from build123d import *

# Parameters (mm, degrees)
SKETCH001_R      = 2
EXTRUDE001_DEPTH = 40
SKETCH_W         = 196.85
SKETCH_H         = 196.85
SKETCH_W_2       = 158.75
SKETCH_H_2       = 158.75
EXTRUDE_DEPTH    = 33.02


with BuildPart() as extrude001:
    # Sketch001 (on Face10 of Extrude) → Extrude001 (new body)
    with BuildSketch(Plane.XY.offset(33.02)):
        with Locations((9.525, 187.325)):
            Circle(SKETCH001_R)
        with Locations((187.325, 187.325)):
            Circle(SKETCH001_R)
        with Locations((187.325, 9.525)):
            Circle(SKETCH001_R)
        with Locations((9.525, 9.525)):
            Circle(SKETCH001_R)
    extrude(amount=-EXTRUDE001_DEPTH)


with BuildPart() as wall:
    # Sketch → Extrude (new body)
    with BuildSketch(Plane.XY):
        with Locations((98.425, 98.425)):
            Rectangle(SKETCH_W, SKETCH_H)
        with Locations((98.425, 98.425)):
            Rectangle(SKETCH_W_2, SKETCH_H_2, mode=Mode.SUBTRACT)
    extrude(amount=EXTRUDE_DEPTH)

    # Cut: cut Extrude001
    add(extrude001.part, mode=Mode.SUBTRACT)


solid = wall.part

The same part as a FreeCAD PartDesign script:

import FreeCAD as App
import Part
import Sketcher

V = App.Vector
Q = App.Units.Quantity


def add_polygon(sketch, points):
    """Adds a closed chain of lines whose ends are joined by coincident constraints."""
    first, n = sketch.GeometryCount, len(points)
    for a, b in zip(points, points[1:] + points[:1]):
        sketch.addGeometry(Part.LineSegment(App.Vector(*a, 0), App.Vector(*b, 0)), False)
    for i in range(n):
        sketch.addConstraint(Sketcher.Constraint("Coincident", first + i, 2, first + (i + 1) % n, 1))

doc = App.newDocument("Part")
body = doc.addObject("PartDesign::Body", "Body")
body.AllowCompound = True

sketch1 = body.newObject("Sketcher::SketchObject", "Sketch")
sketch1.AttachmentSupport = (doc.getObject("XY_Plane"), [""])
sketch1.MapMode = "FlatFace"
sketch1.AttachmentOffset = App.Placement(V(0, 0, 1.3 * 25.4), App.Rotation())
sketch1.addGeometry(Part.Circle(V(9.5, 187.3, 0), V(0, 0, 1), 2), False)
sketch1.addGeometry(Part.Circle(V(187.3, 187.3, 0), V(0, 0, 1), 2), False)
sketch1.addGeometry(Part.Circle(V(187.3, 9.5, 0), V(0, 0, 1), 2), False)
sketch1.addGeometry(Part.Circle(V(9.5, 9.5, 0), V(0, 0, 1), 2), False)
sketch1.addConstraint(Sketcher.Constraint("Equal", 0, 1))
sketch1.addConstraint(Sketcher.Constraint("Equal", 1, 2))
sketch1.addConstraint(Sketcher.Constraint("Equal", 2, 3))
sketch1.addConstraint(Sketcher.Constraint("Horizontal", 0, 3, 1, 3))
sketch1.addConstraint(Sketcher.Constraint("Horizontal", 2, 3, 3, 3))
sketch1.addConstraint(Sketcher.Constraint("Vertical", 1, 3, 2, 3))
sketch1.addConstraint(Sketcher.Constraint("Vertical", 0, 3, 3, 3))
sketch1.addConstraint(Sketcher.Constraint("DistanceX", 0, 3, 1, 3, Q("7 in")))
sketch1.addConstraint(Sketcher.Constraint("DistanceY", 2, 3, 1, 3, Q("7 in")))
sketch1.addConstraint(Sketcher.Constraint("Diameter", 0, Q("4 mm")))
sketch1.addConstraint(Sketcher.Constraint("DistanceX", -1, 1, 0, 3, Q("0.375 in")))
sketch1.addConstraint(Sketcher.Constraint("DistanceY", -1, 1, 0, 3, Q("7.375 in")))
pad1 = body.newObject("PartDesign::Pad", "Pad")
pad1.Profile = sketch1
pad1.Length = 40
pad1.Reversed = True
body2 = doc.addObject("PartDesign::Body", "Body001")

sketch2 = body2.newObject("Sketcher::SketchObject", "Sketch001")
sketch2.AttachmentSupport = (doc.getObject("XY_Plane001"), [""])
sketch2.MapMode = "FlatFace"
add_polygon(sketch2, [(0, 197), (0, 0), (197, 0), (197, 197)])
add_polygon(sketch2, [(178, 19), (19, 19), (19, 178), (178, 178)])
sketch2.addConstraint(Sketcher.Constraint("Vertical", 0))
sketch2.addConstraint(Sketcher.Constraint("Horizontal", 1))
sketch2.addConstraint(Sketcher.Constraint("Vertical", 2))
sketch2.addConstraint(Sketcher.Constraint("Horizontal", 3))
sketch2.addConstraint(Sketcher.Constraint("Horizontal", 4))
sketch2.addConstraint(Sketcher.Constraint("Vertical", 5))
sketch2.addConstraint(Sketcher.Constraint("Horizontal", 6))
sketch2.addConstraint(Sketcher.Constraint("Vertical", 7))
sketch2.addConstraint(Sketcher.Constraint("Coincident", 0, 2, -1, 1))
sketch2.addConstraint(Sketcher.Constraint("Equal", 3, 0))
sketch2.addConstraint(Sketcher.Constraint("Equal", 6, 5))
sketch2.addConstraint(Sketcher.Constraint("DistanceY", -1, 1, 5, 2, Q("7 in")))
sketch2.addConstraint(Sketcher.Constraint("DistanceX", -1, 1, 6, 2, Q("7 in")))
sketch2.addConstraint(Sketcher.Constraint("DistanceX", 4, 2, 1, 2, Q("7 in")))
sketch2.addConstraint(Sketcher.Constraint("DistanceX", 1, 1, 1, 2, Q("7.75 in")))
pad2 = body2.newObject("PartDesign::Pad", "Pad001")
pad2.Profile = sketch2
pad2.Length = Q("1.3 in")
doc.recompute()

boolean = body2.newObject("PartDesign::Boolean", "Boolean")
boolean.Type = "Cut"
boolean.addObjects([body])

doc.recompute()
